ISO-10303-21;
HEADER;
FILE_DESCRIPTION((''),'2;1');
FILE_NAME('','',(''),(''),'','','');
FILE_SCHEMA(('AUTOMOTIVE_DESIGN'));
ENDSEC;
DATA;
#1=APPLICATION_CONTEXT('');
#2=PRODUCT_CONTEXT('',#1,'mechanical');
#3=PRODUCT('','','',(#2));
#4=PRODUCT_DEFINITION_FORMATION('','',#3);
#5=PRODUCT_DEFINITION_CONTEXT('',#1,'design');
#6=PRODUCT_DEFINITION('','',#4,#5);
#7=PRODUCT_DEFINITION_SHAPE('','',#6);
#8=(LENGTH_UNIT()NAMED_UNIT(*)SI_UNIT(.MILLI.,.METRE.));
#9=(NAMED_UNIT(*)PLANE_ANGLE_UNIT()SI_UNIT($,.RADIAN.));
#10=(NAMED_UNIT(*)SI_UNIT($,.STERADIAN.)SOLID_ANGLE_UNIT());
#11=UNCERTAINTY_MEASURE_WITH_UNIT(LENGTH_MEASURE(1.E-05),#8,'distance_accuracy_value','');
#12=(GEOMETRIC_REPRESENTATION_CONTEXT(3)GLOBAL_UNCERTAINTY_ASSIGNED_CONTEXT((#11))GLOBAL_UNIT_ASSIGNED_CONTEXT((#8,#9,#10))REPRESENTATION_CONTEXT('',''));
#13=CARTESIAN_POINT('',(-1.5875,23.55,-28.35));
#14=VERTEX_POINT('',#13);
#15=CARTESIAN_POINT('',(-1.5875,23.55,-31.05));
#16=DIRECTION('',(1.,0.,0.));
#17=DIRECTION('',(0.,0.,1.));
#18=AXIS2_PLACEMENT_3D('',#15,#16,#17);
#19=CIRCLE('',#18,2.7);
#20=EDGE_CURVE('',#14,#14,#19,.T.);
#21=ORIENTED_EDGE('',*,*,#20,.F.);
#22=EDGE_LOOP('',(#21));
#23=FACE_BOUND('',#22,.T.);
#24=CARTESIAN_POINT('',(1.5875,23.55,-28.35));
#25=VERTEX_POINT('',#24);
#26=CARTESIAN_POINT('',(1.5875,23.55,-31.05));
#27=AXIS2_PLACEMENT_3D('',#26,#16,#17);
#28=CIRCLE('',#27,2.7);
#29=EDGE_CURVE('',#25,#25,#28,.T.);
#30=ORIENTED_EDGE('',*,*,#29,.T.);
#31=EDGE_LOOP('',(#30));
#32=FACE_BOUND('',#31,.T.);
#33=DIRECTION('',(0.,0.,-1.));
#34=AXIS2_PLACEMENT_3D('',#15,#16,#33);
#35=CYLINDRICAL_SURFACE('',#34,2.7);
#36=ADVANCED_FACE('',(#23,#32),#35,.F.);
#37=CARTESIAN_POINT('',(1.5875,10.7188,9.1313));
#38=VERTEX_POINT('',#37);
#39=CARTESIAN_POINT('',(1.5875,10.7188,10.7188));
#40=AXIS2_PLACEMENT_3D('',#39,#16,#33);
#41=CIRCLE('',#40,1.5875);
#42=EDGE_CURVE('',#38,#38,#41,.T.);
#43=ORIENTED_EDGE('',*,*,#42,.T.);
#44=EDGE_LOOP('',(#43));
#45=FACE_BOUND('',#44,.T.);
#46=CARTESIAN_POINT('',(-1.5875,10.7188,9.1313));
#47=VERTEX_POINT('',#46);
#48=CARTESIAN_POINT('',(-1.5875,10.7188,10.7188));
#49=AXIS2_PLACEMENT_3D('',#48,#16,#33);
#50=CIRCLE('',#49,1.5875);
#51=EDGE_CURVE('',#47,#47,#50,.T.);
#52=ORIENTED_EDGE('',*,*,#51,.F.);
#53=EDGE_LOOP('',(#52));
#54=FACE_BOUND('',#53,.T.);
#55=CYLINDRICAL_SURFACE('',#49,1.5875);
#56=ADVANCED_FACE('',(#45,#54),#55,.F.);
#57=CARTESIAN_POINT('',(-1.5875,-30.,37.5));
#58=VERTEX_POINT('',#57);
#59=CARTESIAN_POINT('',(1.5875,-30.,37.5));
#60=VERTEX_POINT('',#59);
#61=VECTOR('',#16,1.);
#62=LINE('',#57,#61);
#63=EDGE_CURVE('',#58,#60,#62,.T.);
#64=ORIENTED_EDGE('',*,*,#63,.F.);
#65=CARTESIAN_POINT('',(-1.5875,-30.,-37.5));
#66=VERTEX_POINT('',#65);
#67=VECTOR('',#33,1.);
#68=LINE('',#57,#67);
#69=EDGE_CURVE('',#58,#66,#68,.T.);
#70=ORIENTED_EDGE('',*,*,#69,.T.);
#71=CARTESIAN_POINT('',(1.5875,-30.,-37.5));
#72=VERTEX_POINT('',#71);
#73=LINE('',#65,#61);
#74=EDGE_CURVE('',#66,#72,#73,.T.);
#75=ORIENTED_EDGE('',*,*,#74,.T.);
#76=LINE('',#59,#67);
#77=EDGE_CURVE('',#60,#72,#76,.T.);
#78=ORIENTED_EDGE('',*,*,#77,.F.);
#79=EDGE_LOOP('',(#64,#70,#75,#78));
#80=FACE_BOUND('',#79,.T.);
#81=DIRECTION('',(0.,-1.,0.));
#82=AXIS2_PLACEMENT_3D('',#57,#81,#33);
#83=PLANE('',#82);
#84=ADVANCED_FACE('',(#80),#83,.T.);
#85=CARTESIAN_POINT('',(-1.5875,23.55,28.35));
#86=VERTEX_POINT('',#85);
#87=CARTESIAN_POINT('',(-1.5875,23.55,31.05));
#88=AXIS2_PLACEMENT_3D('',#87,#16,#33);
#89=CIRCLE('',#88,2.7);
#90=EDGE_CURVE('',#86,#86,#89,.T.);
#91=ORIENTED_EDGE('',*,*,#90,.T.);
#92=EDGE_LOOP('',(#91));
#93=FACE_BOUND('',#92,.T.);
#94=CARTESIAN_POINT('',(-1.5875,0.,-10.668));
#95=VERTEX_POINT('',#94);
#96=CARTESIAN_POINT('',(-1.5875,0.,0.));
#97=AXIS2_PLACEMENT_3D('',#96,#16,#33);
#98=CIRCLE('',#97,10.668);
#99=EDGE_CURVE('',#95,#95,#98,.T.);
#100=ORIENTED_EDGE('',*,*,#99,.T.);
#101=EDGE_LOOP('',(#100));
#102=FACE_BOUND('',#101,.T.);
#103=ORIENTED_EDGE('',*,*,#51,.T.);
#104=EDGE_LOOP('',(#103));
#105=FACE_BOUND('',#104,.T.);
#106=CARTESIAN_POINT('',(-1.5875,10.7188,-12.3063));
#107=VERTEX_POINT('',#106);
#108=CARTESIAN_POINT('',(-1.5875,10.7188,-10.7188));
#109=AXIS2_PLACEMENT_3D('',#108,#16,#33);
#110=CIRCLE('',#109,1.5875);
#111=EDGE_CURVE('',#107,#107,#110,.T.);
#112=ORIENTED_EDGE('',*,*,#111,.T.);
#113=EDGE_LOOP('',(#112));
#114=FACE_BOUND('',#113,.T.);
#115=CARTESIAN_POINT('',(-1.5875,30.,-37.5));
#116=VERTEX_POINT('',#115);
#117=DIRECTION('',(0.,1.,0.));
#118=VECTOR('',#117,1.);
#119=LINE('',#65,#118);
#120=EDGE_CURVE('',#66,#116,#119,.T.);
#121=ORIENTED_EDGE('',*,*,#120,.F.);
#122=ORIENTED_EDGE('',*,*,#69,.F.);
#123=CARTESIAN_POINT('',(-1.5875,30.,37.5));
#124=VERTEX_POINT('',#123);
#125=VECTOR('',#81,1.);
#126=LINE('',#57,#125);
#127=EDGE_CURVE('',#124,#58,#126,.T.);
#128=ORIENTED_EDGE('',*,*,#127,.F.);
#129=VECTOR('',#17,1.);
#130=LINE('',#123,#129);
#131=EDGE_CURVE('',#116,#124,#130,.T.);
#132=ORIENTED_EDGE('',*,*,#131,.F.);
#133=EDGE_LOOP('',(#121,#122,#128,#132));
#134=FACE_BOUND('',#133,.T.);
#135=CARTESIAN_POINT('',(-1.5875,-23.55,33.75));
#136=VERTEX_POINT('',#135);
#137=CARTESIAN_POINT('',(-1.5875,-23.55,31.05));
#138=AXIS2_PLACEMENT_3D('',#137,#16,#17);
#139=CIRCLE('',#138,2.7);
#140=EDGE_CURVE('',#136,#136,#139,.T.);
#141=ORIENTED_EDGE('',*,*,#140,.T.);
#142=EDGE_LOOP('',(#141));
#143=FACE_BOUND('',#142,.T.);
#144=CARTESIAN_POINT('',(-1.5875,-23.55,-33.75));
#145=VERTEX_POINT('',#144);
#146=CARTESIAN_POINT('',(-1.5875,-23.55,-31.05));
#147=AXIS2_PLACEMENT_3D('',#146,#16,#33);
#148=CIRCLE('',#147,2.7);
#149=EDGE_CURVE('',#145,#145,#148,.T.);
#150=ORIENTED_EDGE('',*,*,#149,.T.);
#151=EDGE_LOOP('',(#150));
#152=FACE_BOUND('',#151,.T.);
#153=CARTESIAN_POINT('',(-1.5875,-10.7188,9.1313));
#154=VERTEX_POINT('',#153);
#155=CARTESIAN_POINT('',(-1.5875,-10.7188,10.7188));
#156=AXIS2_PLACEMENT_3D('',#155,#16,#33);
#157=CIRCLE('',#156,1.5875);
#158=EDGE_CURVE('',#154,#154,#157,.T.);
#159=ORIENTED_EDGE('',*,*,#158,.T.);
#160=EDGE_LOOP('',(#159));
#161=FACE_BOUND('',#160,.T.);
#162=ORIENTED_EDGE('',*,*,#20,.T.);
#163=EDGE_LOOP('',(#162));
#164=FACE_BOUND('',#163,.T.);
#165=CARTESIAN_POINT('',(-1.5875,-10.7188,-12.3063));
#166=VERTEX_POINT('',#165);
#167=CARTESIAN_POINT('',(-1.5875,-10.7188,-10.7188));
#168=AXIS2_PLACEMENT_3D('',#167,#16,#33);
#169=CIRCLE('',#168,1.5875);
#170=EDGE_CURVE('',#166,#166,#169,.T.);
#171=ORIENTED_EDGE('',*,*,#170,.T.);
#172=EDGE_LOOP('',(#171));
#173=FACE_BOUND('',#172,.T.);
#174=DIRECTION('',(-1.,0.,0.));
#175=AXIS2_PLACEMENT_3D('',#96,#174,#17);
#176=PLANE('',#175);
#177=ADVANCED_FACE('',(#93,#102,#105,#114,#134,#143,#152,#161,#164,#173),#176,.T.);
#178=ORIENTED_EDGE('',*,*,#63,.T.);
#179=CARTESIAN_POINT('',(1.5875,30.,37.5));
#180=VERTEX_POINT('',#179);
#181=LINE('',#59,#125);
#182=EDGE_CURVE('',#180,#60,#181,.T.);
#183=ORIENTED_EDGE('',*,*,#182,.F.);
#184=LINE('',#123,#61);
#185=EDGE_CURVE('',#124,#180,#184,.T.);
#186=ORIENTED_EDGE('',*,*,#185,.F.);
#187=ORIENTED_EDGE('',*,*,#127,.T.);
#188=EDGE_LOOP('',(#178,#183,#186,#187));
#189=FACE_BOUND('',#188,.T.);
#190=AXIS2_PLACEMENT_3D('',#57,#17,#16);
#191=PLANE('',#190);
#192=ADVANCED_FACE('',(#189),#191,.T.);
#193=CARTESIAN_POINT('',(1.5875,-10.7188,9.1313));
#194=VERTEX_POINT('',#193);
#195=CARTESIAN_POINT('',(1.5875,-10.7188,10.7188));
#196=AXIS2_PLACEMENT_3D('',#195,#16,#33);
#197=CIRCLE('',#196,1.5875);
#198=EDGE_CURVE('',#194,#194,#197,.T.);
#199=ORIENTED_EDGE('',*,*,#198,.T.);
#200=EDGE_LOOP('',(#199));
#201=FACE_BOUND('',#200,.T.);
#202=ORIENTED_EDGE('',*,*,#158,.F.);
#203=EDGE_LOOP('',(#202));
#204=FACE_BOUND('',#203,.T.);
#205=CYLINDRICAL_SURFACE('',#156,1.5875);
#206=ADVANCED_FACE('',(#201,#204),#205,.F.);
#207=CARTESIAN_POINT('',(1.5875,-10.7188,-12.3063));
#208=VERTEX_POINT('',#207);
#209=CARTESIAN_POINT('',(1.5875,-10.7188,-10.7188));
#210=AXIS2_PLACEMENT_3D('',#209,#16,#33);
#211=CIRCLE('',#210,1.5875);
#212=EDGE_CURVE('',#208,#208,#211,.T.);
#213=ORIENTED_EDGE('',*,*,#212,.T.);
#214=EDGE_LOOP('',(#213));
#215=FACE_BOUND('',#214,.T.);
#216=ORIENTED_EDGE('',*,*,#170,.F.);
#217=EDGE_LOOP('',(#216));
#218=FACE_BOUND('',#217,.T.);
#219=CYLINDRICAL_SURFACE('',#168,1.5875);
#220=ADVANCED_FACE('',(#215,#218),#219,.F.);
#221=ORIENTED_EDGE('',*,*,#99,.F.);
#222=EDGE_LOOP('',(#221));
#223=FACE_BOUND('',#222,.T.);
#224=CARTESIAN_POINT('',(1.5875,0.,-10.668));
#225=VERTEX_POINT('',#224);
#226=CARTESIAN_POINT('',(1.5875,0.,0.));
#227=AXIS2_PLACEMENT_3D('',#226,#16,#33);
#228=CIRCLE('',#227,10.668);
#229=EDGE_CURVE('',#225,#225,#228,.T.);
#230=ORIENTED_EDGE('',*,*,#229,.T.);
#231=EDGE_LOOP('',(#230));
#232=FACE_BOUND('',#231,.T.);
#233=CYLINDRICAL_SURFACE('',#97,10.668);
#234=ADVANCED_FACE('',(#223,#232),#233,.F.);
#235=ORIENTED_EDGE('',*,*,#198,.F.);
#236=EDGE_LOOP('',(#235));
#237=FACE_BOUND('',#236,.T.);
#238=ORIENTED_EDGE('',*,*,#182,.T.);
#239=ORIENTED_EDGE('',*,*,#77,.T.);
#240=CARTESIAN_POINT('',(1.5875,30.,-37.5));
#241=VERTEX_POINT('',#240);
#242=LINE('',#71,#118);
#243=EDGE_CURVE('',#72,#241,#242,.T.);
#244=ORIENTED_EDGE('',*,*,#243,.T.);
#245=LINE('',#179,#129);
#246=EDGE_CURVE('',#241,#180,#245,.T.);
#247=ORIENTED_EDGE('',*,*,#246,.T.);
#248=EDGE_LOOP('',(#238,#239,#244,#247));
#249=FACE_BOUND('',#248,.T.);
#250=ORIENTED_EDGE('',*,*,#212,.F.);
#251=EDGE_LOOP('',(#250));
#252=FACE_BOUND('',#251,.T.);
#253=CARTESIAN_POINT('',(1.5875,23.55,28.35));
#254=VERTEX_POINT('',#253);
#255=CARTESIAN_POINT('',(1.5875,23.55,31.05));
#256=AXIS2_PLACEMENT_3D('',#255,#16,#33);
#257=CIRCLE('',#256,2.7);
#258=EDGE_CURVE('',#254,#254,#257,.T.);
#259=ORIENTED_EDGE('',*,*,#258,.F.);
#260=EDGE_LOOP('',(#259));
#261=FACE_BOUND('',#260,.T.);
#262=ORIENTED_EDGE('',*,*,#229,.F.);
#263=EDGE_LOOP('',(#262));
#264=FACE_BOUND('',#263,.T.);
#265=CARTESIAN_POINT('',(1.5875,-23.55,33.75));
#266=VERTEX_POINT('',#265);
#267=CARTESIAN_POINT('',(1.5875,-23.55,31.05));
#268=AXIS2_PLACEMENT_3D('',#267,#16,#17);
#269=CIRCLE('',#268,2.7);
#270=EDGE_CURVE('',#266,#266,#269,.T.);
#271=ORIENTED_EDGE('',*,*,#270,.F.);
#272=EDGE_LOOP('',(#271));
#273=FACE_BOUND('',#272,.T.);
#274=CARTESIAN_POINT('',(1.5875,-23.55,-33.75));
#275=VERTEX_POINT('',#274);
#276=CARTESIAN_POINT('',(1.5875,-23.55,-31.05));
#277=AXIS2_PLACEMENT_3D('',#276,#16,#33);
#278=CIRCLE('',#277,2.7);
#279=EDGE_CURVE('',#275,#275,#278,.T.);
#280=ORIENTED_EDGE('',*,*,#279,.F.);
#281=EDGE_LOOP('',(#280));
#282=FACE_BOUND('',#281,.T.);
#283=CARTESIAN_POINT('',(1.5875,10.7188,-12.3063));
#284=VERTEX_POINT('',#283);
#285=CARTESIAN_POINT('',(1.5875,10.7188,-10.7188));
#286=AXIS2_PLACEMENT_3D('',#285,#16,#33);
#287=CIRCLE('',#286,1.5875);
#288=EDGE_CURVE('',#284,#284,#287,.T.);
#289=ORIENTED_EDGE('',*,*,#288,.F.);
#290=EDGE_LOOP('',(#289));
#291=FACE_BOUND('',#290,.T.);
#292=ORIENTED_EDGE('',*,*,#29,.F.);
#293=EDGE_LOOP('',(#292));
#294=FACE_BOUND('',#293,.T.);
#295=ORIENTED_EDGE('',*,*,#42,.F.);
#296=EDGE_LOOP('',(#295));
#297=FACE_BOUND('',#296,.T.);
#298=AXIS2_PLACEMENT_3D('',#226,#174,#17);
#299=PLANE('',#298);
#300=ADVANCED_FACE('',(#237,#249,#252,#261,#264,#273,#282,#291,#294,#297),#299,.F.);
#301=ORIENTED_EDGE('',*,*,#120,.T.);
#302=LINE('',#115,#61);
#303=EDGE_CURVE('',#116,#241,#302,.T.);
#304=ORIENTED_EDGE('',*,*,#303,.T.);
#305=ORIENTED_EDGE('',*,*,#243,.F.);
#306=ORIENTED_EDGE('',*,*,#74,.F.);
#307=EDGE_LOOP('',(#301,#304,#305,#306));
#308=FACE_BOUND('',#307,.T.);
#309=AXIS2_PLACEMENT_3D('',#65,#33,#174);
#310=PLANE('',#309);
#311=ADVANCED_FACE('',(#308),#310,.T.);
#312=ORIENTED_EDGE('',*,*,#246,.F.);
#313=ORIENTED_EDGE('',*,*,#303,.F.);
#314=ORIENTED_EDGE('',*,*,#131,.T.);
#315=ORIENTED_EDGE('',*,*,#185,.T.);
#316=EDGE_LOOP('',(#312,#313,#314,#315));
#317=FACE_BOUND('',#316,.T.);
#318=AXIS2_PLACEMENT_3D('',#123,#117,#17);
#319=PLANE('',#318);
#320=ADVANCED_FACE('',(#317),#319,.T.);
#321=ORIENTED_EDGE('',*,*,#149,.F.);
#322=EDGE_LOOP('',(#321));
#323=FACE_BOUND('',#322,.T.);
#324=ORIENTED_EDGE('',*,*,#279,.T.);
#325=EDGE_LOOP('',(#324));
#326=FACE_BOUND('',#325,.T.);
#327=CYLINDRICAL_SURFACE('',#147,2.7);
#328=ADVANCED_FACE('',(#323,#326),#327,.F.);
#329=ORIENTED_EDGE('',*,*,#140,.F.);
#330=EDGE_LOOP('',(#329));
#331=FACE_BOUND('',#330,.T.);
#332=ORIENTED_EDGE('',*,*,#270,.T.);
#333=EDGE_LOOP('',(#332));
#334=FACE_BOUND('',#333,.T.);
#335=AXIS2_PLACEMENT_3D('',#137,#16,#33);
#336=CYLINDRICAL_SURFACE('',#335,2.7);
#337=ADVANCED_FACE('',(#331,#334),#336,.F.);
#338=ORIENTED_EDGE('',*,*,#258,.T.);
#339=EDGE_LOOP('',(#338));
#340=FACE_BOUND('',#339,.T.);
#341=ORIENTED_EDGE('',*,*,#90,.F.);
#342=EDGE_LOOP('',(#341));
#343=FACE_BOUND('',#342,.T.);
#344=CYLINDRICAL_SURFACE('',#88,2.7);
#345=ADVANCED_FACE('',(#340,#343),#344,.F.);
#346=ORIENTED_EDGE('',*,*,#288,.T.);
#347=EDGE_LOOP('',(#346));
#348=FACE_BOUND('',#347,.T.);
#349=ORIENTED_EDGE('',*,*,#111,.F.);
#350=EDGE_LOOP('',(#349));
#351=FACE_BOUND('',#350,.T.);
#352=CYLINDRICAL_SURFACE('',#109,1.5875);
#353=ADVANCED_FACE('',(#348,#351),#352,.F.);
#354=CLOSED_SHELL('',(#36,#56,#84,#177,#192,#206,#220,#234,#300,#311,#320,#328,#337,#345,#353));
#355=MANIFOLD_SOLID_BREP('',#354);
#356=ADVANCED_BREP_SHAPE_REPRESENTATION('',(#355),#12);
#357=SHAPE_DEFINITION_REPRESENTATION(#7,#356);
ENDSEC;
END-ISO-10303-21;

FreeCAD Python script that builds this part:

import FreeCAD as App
import Part
import Sketcher


def add_polygon(sketch, points):
    """Adds a closed chain of lines whose ends are joined by coincident constraints."""
    first, n = sketch.GeometryCount, len(points)
    for a, b in zip(points, points[1:] + points[:1]):
        sketch.addGeometry(Part.LineSegment(App.Vector(*a, 0), App.Vector(*b, 0)), False)
    for i in range(n):
        sketch.addConstraint(Sketcher.Constraint("Coincident", first + i, 2, first + (i + 1) % n, 1))

doc = App.newDocument("Part")
body = doc.addObject("PartDesign::Body", "Body")

# Sketch on YZ plane
sketch1 = doc.addObject("Sketcher::SketchObject", "Sketch")
body.addObject(sketch1)
sketch1.AttachmentSupport = (doc.YZ_Plane, [""])
sketch1.MapMode = "FlatFace"
add_polygon(sketch1, [(30, 38), (-30, 38), (-30, -38), (30, -38)])  # lines 0-3
sketch1.addConstraint(Sketcher.Constraint("Horizontal", 0))
sketch1.addConstraint(Sketcher.Constraint("Vertical", 1))
sketch1.addConstraint(Sketcher.Constraint("Horizontal", 2))
sketch1.addConstraint(Sketcher.Constraint("Vertical", 3))
sketch1.addConstraint(Sketcher.Constraint("Symmetric", 0, 2, 2, 2, -1, 1))
sketch1.addConstraint(Sketcher.Constraint("DistanceX", 0, 2, 0, 1, 60.0))
sketch1.addConstraint(Sketcher.Constraint("DistanceY", 1, 2, 1, 1, 75.0))
pad1 = doc.addObject("PartDesign::Pad", "Pad")
body.addObject(pad1)
pad1.Profile = sketch1
pad1.Type = "TwoLengths"
pad1.Length = 1.5875
pad1.Length2 = 1.5875

# Sketch on YZ plane
sketch2 = doc.addObject("Sketcher::SketchObject", "Sketch001")
body.addObject(sketch2)
sketch2.AttachmentSupport = (doc.YZ_Plane, [""])
sketch2.MapMode = "FlatFace"
sketch2.addGeometry(Part.Circle(App.Vector(23.6, 31.1, 0), App.Vector(0, 0, 1), 2.7), False)
sketch2.addGeometry(Part.Circle(App.Vector(23.6, -31.1, 0), App.Vector(0, 0, 1), 2.7), False)
sketch2.addGeometry(Part.Circle(App.Vector(-23.6, -31.1, 0), App.Vector(0, 0, 1), 2.7), False)
sketch2.addGeometry(Part.Circle(App.Vector(-23.6, 31.1, 0), App.Vector(0, 0, 1), 2.7), False)
sketch2.addConstraint(Sketcher.Constraint("Equal", 0, 1))
sketch2.addConstraint(Sketcher.Constraint("Equal", 1, 2))
sketch2.addConstraint(Sketcher.Constraint("Equal", 2, 3))
sketch2.addConstraint(Sketcher.Constraint("Symmetric", 0, 3, 2, 3, -1, 1))
sketch2.addConstraint(Sketcher.Constraint("Symmetric", 1, 3, 3, 3, -1, 1))
sketch2.addConstraint(Sketcher.Constraint("Symmetric", 1, 3, 2, 3, -2))
sketch2.addConstraint(Sketcher.Constraint("Diameter", 0, 5.4))
sketch2.addConstraint(Sketcher.Constraint("DistanceY", 1, 3, 0, 3, 62.1))
sketch2.addConstraint(Sketcher.Constraint("DistanceX", 2, 3, 1, 3, 47.1))
pocket1 = doc.addObject("PartDesign::Pocket", "Pocket")
body.addObject(pocket1)
pocket1.Profile = sketch2
pocket1.Type = "ThroughAll"
pocket1.Midplane = True

# Sketch on YZ plane
sketch3 = doc.addObject("Sketcher::SketchObject", "Sketch002")
body.addObject(sketch3)
sketch3.AttachmentSupport = (doc.YZ_Plane, [""])
sketch3.MapMode = "FlatFace"
sketch3.addGeometry(Part.Circle(App.Vector(0, 0, 0), App.Vector(0, 0, 1), 10.7), False)
sketch3.addGeometry(Part.Circle(App.Vector(10.7, 10.7, 0), App.Vector(0, 0, 1), 1.6), False)
sketch3.addGeometry(Part.Circle(App.Vector(10.7, -10.7, 0), App.Vector(0, 0, 1), 1.6), False)
sketch3.addGeometry(Part.Circle(App.Vector(-10.7, -10.7, 0), App.Vector(0, 0, 1), 1.6), False)
sketch3.addGeometry(Part.Circle(App.Vector(-10.7, 10.7, 0), App.Vector(0, 0, 1), 1.6), False)
sketch3.addConstraint(Sketcher.Constraint("Coincident", 0, 3, -1, 1))
sketch3.addConstraint(Sketcher.Constraint("Equal", 1, 2))
sketch3.addConstraint(Sketcher.Constraint("Equal", 2, 3))
sketch3.addConstraint(Sketcher.Constraint("Equal", 3, 4))
sketch3.addConstraint(Sketcher.Constraint("Symmetric", 1, 3, 3, 3, -1, 1))
sketch3.addConstraint(Sketcher.Constraint("Symmetric", 2, 3, 4, 3, -1, 1))
sketch3.addConstraint(Sketcher.Constraint("Symmetric", 2, 3, 3, 3, -2))
sketch3.addConstraint(Sketcher.Constraint("Diameter", 0, 21.336))
sketch3.addConstraint(Sketcher.Constraint("Diameter", 1, 3.175))
sketch3.addConstraint(Sketcher.Constraint("DistanceX", -1, 1, 1, 3, 10.7188))
sketch3.addConstraint(Sketcher.Constraint("DistanceY", -1, 1, 1, 3, 10.7188))
pocket2 = doc.addObject("PartDesign::Pocket", "Pocket001")
body.addObject(pocket2)
pocket2.Profile = sketch3
pocket2.Type = "ThroughAll"
pocket2.Midplane = True

doc.recompute()
